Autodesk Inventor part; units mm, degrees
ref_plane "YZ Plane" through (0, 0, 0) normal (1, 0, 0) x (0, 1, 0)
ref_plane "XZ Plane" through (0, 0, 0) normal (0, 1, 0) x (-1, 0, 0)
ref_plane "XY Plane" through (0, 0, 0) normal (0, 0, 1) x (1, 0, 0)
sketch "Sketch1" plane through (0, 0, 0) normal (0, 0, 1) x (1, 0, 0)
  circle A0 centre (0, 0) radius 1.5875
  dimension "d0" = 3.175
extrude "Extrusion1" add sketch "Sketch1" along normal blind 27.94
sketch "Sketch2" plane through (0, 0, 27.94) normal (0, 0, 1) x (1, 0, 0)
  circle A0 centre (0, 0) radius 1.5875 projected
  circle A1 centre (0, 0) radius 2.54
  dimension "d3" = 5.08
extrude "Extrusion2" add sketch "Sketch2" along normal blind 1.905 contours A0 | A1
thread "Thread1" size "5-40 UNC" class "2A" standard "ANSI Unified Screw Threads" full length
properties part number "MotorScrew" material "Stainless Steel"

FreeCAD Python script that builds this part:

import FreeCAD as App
import Part
import Sketcher
from FreeCAD import Vector
Q = App.Units.Quantity

doc = App.newDocument("Part")
body = doc.addObject("PartDesign::Body", "Body")

# Sketch on XY plane
sketch1 = body.newObject("Sketcher::SketchObject", "Sketch")
sketch1.AttachmentSupport = (doc.getObject("XY_Plane"), [""])
sketch1.MapMode = "FlatFace"
sketch1.addGeometry(Part.Circle(Vector(0, 0, 0), Vector(0, 0, 1), 1.6), False)
sketch1.addConstraint([
    Sketcher.Constraint("Coincident", 0, 3, -1, 1),
    Sketcher.Constraint("Diameter", 0, Q("0.125 in")),
])
pad1 = body.newObject("PartDesign::Pad", "Pad")
pad1.Profile = sketch1
pad1.Length = Q("1.1 in")

# Sketch on XY plane
sketch2 = body.newObject("Sketcher::SketchObject", "Sketch001")
sketch2.AttachmentSupport = (doc.getObject("XY_Plane"), [""])
sketch2.MapMode = "FlatFace"
sketch2.AttachmentOffset = App.Placement(Vector(0, 0, 1.1 * 25.4), App.Rotation())
sketch2.addGeometry(Part.Circle(Vector(0, 0, 0), Vector(0, 0, 1), 2.5), False)
sketch2.addConstraint([
    Sketcher.Constraint("Coincident", 0, 3, -1, 1),
    Sketcher.Constraint("Diameter", 0, Q("0.2 in")),
])
pad2 = body.newObject("PartDesign::Pad", "Pad001")
pad2.Profile = sketch2
pad2.Length = Q("0.075 in")

doc.recompute()
